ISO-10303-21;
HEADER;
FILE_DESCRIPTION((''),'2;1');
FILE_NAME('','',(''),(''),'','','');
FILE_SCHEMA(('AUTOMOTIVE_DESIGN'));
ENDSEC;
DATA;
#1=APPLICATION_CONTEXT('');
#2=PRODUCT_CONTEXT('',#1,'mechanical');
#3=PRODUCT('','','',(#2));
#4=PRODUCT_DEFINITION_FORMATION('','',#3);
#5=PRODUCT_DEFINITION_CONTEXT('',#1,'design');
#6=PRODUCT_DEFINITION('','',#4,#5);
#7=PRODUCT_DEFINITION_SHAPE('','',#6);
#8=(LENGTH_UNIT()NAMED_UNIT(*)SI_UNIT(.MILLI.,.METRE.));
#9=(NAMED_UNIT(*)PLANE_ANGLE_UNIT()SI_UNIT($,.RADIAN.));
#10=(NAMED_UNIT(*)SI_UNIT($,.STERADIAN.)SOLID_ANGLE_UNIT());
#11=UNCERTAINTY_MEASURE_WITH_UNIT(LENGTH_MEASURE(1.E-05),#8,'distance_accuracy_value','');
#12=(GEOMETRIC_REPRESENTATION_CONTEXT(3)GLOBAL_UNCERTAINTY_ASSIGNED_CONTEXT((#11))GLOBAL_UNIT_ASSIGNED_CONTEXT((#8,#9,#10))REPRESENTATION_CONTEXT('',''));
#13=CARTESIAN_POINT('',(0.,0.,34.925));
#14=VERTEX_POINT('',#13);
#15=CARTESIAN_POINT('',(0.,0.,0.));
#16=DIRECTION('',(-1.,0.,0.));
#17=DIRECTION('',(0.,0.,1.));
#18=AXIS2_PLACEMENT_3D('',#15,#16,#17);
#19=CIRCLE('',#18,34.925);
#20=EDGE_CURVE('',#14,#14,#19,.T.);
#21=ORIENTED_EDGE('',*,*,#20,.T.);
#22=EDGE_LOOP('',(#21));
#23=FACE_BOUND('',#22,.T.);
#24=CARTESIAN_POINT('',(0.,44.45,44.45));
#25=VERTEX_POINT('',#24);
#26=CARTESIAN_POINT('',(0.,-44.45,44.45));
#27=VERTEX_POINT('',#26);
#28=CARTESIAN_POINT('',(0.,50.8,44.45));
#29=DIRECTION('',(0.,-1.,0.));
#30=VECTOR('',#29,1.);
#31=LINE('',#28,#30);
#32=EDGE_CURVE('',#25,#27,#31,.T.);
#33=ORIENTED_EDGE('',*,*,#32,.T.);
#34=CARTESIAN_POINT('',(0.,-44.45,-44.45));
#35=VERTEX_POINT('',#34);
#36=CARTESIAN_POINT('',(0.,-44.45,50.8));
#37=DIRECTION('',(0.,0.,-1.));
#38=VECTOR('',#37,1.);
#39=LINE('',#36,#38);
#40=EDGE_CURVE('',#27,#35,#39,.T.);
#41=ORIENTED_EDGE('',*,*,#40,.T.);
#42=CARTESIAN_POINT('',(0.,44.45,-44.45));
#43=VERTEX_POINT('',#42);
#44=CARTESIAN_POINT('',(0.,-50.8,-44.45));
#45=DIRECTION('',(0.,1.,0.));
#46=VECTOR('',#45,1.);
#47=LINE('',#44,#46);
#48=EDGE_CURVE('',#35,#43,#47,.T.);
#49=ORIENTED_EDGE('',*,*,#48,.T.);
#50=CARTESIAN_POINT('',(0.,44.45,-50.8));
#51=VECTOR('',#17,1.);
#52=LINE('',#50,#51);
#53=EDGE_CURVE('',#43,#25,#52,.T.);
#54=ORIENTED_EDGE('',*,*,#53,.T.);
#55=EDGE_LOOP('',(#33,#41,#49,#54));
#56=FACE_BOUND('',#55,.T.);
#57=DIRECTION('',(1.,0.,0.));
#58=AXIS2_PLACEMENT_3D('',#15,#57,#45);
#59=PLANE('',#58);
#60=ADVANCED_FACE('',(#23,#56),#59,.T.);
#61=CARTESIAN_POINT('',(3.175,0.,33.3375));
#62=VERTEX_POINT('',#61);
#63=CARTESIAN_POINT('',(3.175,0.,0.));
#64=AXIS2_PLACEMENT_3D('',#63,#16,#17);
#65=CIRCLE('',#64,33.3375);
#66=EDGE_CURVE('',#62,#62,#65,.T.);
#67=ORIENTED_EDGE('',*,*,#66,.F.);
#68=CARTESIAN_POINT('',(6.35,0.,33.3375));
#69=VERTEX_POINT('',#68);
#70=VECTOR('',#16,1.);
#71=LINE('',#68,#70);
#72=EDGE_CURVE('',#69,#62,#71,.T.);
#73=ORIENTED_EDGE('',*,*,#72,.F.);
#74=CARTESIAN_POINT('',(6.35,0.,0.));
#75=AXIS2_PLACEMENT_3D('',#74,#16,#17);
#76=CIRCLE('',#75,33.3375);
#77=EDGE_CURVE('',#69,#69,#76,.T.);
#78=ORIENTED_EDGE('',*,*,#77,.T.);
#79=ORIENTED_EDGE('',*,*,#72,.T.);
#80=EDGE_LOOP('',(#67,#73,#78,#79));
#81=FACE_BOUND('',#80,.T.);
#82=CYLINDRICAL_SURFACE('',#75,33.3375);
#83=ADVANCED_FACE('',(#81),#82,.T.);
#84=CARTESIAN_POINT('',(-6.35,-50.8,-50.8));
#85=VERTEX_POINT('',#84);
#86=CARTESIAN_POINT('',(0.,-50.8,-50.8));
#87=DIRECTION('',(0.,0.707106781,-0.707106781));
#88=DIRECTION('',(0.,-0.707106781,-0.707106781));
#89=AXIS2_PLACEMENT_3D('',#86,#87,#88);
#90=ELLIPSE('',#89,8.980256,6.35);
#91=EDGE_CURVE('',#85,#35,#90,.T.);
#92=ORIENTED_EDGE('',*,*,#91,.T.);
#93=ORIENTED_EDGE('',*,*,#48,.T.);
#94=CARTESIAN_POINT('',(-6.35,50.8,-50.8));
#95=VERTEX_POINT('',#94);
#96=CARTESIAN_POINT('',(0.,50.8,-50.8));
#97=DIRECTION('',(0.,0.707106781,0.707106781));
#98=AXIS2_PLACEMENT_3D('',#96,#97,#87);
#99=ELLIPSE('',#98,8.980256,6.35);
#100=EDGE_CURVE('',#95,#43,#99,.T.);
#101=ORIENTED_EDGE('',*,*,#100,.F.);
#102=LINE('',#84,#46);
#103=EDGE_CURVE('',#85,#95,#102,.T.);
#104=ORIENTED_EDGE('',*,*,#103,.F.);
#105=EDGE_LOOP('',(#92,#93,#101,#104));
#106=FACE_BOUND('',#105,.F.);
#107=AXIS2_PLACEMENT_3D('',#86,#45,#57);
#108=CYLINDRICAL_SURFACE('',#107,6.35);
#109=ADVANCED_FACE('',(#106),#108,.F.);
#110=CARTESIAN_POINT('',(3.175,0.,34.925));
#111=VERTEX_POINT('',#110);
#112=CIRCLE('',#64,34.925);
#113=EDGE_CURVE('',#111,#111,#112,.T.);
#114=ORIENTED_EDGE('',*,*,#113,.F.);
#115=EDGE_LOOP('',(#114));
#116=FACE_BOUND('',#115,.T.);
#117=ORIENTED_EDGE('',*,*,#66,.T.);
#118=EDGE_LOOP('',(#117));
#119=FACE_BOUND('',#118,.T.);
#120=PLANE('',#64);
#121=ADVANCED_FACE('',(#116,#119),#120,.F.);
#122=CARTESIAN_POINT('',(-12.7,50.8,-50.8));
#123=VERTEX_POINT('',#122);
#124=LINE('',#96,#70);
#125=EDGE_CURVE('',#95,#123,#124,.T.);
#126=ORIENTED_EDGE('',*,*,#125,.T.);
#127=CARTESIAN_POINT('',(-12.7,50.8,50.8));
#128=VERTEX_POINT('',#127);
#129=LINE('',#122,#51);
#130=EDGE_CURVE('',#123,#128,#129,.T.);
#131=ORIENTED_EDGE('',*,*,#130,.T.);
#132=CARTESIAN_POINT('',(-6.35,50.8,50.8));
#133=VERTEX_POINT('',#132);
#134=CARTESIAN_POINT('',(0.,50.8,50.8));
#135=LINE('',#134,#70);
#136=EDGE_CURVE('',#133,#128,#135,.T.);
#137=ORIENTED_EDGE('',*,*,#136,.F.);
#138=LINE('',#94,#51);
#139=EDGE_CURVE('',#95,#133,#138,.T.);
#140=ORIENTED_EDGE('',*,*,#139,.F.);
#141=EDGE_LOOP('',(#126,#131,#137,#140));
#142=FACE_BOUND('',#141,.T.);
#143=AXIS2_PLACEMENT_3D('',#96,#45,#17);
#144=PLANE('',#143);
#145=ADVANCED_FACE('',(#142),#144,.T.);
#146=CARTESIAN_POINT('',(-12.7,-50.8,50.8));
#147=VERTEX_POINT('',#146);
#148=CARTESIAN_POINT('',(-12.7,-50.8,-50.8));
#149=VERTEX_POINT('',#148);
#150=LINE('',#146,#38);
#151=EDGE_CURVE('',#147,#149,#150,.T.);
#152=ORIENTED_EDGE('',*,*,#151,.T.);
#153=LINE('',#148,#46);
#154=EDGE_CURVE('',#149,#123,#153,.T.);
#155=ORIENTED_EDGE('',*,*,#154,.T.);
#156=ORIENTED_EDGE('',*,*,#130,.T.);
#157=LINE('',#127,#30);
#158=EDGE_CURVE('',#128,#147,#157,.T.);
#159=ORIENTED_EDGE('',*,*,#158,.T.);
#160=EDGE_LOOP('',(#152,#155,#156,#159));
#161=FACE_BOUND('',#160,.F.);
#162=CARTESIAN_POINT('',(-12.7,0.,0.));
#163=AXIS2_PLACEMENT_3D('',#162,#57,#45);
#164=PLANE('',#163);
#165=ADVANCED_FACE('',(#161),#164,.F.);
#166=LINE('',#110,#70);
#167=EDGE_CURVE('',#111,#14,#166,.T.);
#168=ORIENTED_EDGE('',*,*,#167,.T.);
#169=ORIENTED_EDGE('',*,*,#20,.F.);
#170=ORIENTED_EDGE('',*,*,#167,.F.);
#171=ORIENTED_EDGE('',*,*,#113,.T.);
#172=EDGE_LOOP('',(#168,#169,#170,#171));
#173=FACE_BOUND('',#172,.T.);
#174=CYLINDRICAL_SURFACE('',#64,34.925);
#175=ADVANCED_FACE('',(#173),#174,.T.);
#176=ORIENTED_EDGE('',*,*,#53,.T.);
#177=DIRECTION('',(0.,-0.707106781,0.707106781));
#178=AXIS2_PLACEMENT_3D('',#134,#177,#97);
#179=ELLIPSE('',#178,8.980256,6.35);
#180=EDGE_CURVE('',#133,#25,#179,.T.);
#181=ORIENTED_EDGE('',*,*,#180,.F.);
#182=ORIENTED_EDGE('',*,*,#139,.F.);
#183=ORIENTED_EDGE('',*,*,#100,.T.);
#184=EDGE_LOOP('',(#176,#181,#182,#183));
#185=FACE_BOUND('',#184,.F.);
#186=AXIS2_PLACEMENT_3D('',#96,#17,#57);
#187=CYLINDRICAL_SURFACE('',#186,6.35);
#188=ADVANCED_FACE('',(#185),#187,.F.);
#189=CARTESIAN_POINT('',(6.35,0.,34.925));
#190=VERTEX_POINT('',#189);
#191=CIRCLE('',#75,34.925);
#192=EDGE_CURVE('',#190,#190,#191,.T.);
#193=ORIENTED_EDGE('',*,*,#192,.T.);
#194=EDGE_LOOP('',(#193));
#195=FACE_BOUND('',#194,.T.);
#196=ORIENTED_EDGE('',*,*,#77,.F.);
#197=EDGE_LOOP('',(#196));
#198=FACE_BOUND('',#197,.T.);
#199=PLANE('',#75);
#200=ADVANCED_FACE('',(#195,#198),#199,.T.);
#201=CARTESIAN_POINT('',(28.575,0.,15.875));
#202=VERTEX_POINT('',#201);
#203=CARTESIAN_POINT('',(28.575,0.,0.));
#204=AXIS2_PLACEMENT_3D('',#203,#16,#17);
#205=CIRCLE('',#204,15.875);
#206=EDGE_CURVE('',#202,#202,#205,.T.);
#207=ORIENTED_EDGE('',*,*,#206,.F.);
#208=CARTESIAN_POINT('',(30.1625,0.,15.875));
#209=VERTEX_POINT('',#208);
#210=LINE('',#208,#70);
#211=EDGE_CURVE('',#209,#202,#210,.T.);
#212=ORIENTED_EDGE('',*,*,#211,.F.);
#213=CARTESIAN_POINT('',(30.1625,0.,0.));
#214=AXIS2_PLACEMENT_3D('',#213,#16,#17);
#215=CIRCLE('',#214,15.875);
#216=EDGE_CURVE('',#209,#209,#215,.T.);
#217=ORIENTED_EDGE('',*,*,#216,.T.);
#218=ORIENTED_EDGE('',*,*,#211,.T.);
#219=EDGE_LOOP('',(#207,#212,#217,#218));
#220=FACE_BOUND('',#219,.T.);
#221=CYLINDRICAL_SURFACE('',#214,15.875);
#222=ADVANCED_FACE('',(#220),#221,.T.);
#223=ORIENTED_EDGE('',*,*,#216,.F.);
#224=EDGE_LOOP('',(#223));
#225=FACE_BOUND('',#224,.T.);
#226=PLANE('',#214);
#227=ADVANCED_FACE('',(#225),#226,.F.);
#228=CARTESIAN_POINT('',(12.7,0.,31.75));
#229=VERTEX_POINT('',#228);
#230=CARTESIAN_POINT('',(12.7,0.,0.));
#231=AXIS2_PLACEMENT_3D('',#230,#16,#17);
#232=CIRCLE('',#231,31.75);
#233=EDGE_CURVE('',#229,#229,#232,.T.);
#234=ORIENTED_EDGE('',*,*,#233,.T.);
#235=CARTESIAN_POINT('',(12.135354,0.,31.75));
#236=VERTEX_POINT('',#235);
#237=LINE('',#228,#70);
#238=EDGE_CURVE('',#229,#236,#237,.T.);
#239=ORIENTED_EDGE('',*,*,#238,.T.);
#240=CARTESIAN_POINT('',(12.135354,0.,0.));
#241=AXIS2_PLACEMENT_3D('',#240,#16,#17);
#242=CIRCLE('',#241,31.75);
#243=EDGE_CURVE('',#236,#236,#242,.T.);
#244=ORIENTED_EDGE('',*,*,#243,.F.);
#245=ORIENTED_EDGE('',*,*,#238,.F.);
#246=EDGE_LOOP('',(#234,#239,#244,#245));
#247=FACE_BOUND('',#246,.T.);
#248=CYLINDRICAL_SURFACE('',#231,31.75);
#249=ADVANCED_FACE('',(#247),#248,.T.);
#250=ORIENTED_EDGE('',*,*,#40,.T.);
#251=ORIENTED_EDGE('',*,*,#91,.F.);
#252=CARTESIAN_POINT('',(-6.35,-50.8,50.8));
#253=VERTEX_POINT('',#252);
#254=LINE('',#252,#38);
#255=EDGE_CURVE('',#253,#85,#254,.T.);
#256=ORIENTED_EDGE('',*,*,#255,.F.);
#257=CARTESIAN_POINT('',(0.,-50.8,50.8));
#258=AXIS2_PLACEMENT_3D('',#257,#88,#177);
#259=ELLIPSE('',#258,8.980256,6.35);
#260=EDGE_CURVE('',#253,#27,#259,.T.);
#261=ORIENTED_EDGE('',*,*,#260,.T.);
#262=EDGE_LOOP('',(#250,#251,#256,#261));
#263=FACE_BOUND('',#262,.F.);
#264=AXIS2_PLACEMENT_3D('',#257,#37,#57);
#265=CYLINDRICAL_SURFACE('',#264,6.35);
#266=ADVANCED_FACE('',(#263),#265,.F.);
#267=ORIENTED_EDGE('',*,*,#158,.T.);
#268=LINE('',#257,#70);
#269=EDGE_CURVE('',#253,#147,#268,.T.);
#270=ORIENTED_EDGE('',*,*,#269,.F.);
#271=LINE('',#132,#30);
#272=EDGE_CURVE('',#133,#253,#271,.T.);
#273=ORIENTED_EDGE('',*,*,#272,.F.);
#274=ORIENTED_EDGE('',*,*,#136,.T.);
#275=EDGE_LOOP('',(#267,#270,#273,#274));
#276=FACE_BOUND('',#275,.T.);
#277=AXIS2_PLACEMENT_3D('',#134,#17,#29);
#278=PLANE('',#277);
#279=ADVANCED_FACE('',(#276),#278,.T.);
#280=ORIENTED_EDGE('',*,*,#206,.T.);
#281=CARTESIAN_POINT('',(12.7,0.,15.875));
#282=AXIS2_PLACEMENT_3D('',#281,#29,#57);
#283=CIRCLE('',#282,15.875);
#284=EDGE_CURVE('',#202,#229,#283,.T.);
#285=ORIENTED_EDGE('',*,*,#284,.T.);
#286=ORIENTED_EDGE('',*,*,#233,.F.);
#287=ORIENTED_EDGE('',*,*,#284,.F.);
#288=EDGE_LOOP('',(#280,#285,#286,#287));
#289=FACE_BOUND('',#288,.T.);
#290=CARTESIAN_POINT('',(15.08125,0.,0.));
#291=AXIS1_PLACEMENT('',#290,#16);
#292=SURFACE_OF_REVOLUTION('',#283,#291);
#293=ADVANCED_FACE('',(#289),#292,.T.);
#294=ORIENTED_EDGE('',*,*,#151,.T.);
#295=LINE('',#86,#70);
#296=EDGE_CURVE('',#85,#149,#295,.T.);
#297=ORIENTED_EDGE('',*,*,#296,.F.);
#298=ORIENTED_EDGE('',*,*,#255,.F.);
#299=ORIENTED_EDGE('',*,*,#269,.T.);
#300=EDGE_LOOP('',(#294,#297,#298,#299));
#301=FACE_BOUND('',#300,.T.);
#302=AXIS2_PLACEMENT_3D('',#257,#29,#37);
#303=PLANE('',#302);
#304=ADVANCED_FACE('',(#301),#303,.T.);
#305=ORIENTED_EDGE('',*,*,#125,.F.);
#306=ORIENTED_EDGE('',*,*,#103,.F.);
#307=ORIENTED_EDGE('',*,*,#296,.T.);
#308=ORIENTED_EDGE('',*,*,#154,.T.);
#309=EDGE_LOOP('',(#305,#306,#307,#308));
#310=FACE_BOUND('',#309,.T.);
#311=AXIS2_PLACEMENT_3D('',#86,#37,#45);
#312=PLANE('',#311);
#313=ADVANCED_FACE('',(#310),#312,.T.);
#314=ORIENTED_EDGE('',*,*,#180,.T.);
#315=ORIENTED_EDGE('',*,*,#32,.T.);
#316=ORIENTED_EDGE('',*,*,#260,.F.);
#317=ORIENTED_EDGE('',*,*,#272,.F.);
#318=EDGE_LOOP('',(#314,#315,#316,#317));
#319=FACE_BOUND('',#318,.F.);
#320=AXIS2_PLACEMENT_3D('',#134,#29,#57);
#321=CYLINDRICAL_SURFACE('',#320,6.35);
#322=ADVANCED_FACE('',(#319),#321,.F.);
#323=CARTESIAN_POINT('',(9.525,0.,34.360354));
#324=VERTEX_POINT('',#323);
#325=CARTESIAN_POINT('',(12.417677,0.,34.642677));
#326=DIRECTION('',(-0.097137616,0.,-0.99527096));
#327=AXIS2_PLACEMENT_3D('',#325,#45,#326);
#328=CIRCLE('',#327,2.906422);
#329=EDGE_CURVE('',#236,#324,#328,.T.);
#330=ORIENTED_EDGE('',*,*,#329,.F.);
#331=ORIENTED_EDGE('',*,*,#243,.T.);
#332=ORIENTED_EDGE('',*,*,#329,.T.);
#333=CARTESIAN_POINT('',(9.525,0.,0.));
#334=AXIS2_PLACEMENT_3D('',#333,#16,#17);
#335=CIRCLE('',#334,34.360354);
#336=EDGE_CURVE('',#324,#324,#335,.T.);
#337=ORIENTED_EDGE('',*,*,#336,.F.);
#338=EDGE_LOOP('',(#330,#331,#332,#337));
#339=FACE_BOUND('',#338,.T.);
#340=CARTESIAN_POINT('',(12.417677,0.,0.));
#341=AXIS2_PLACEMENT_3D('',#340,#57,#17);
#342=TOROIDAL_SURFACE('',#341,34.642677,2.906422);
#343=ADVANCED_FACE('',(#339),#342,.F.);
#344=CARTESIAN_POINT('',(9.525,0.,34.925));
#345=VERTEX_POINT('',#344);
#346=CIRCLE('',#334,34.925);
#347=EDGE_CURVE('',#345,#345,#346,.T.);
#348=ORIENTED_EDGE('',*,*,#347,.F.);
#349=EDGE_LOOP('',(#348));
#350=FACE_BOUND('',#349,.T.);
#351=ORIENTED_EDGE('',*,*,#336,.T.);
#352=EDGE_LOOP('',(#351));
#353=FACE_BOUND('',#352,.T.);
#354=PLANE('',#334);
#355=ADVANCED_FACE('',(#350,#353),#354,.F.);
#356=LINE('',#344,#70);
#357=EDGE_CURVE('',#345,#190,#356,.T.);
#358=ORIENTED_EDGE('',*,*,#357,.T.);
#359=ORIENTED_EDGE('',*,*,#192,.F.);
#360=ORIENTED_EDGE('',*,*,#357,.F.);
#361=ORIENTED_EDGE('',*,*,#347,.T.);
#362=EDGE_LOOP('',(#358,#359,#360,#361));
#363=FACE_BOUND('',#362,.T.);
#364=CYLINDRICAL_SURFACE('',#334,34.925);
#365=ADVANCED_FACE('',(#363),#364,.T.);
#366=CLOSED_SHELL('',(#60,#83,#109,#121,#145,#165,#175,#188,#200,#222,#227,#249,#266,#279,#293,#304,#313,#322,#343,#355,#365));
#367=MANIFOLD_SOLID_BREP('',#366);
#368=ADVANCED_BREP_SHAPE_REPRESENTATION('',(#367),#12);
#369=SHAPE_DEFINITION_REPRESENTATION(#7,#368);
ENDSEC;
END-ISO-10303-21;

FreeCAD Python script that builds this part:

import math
import FreeCAD as App
import Part
import Sketcher
Q = App.Units.Quantity


def add_polygon(sketch, points):
    """Adds a closed chain of lines whose ends are joined by coincident constraints."""
    first, n = sketch.GeometryCount, len(points)
    for a, b in zip(points, points[1:] + points[:1]):
        sketch.addGeometry(Part.LineSegment(App.Vector(*a, 0), App.Vector(*b, 0)), False)
    for i in range(n):
        sketch.addConstraint(Sketcher.Constraint("Coincident", first + i, 2, first + (i + 1) % n, 1))

doc = App.newDocument("Part")
body = doc.addObject("PartDesign::Body", "Body")

# Sketch on XZ plane
sketch1 = body.newObject("Sketcher::SketchObject", "Sketch")
sketch1.AttachmentSupport = (doc.getObject("XZ_Plane"), [""])
sketch1.MapMode = "FlatFace"
sketch1.addGeometry([
    Part.LineSegment(App.Vector(0, 34.9, 0), App.Vector(0, 0, 0)),  # 0
    Part.LineSegment(App.Vector(0, 0, 0), App.Vector(30.2, 0, 0)),  # 1
    Part.LineSegment(App.Vector(30.2, 0, 0), App.Vector(30.2, 15.9, 0)),  # 2
    Part.LineSegment(App.Vector(30.2, 15.9, 0), App.Vector(28.6, 15.9, 0)),  # 3
    Part.ArcOfCircle(Part.Circle(App.Vector(12.7, 15.9, 0), App.Vector(0, 0, 1), 15.9), math.radians(0), math.radians(90)),  # 4
    Part.LineSegment(App.Vector(12.7, 31.8, 0), App.Vector(12.1, 31.8, 0)),  # 5
    Part.ArcOfCircle(Part.Circle(App.Vector(12.4, 34.6, 0), App.Vector(0, 0, 1), 2.9), math.radians(-174), math.radians(-96)),  # 6
    Part.LineSegment(App.Vector(9.5, 34.4, 0), App.Vector(9.5, 34.9, 0)),  # 7
    Part.LineSegment(App.Vector(9.5, 34.9, 0), App.Vector(6.3, 34.9, 0)),  # 8
    Part.LineSegment(App.Vector(6.3, 34.9, 0), App.Vector(6.3, 33.3, 0)),  # 9
    Part.LineSegment(App.Vector(6.3, 33.3, 0), App.Vector(3.2, 33.3, 0)),  # 10
    Part.LineSegment(App.Vector(3.2, 33.3, 0), App.Vector(3.2, 34.9, 0)),  # 11
    Part.LineSegment(App.Vector(3.2, 34.9, 0), App.Vector(0, 34.9, 0)),  # 12
], False)
sketch1.addConstraint([
    Sketcher.Constraint("Coincident", 0, 2, 1, 1),
    Sketcher.Constraint("Coincident", 1, 2, 2, 1),
    Sketcher.Constraint("Coincident", 2, 2, 3, 1),
    Sketcher.Constraint("Coincident", 3, 2, 4, 1),
    Sketcher.Constraint("Tangent", 4, 2, 5, 1),
    Sketcher.Constraint("Coincident", 5, 2, 6, 2),
    Sketcher.Constraint("Coincident", 6, 1, 7, 1),
    Sketcher.Constraint("Coincident", 7, 2, 8, 1),
    Sketcher.Constraint("Coincident", 8, 2, 9, 1),
    Sketcher.Constraint("Coincident", 9, 2, 10, 1),
    Sketcher.Constraint("Coincident", 10, 2, 11, 1),
    Sketcher.Constraint("Coincident", 11, 2, 12, 1),
    Sketcher.Constraint("Coincident", 12, 2, 0, 1),
    Sketcher.Constraint("Vertical", 0),
    Sketcher.Constraint("Horizontal", 1),
    Sketcher.Constraint("Vertical", 2),
    Sketcher.Constraint("Horizontal", 3),
    Sketcher.Constraint("Horizontal", 5),
    Sketcher.Constraint("Vertical", 7),
    Sketcher.Constraint("Horizontal", 8),
    Sketcher.Constraint("Vertical", 9),
    Sketcher.Constraint("Horizontal", 10),
    Sketcher.Constraint("Vertical", 11),
    Sketcher.Constraint("Horizontal", 12),
    Sketcher.Constraint("Coincident", 0, 2, -1, 1),
    Sketcher.Constraint("Horizontal", 4, 3, 2, 2),
    Sketcher.Constraint("Horizontal", 8, 2, 11, 2),
    Sketcher.Constraint("Equal", 8, 10),
    Sketcher.Constraint("Equal", 10, 12),
    Sketcher.Constraint("Equal", 5, 7),
    Sketcher.Constraint("Equal", 3, 9),
    Sketcher.Constraint("Radius", 4, Q("0.625 in")),
    Sketcher.Constraint("DistanceX", -1, 1, 4, 3, Q("0.5 in")),
    Sketcher.Constraint("DistanceX", 1, 1, 1, 2, Q("1.1875 in")),
    Sketcher.Constraint("DistanceX", 8, 2, 8, 1, Q("0.125 in")),
    Sketcher.Constraint("DistanceY", 0, 2, 0, 1, Q("1.375 in")),
    Sketcher.Constraint("DistanceY", 2, 1, 2, 2, Q("0.625 in")),
    Sketcher.Constraint("Radius", 6, Q("2.906422 mm")),
    Sketcher.Constraint("DistanceX", 5, 2, 5, 1, Q("0.564646 mm")),
])
revolution = body.newObject("PartDesign::Revolution", "Revolution")
revolution.Profile = sketch1
revolution.ReferenceAxis = (sketch1, ["H_Axis"])
revolution.Angle = 360

# Sketch on YZ plane
sketch2 = body.newObject("Sketcher::SketchObject", "Sketch001")
sketch2.AttachmentSupport = (doc.getObject("YZ_Plane"), [""])
sketch2.MapMode = "FlatFace"
add_polygon(sketch2, [(51, 51), (-51, 51), (-51, -51), (51, -51)])  # lines 0-3
sketch2.addConstraint([
    Sketcher.Constraint("Horizontal", 0),
    Sketcher.Constraint("Vertical", 1),
    Sketcher.Constraint("Horizontal", 2),
    Sketcher.Constraint("Vertical", 3),
    Sketcher.Constraint("Symmetric", 0, 2, 2, 2, -1, 1),
    Sketcher.Constraint("Equal", 2, 1),
    Sketcher.Constraint("DistanceX", 0, 2, 0, 1, Q("4 in")),
])
pad1 = body.newObject("PartDesign::Pad", "Pad")
pad1.Profile = sketch2
pad1.Length = Q("0.5 in")
pad1.Reversed = True

# Sketch on XZ plane
sketch3 = body.newObject("Sketcher::SketchObject", "Sketch002")
sketch3.AttachmentSupport = (doc.getObject("XZ_Plane"), [""])
sketch3.MapMode = "FlatFace"
sketch3.AttachmentOffset = App.Placement(App.Vector(0, 0, 2 * 25.4), App.Rotation())
sketch3.addGeometry(Part.Circle(App.Vector(0, 51, 0), App.Vector(0, 0, 1), 6), False)
sketch3.addConstraint([
    Sketcher.Constraint("PointOnObject", 0, 3, -2),
    Sketcher.Constraint("Diameter", 0, Q("0.5 in")),
    Sketcher.Constraint("DistanceY", -1, 1, 0, 3, Q("2 in")),
])

# Sketch on YZ plane
sketch4 = body.newObject("Sketcher::SketchObject", "Sketch003")
sketch4.AttachmentSupport = (doc.getObject("YZ_Plane"), [""])
sketch4.MapMode = "FlatFace"
add_polygon(sketch4, [(51, 51), (-51, 51), (-51, -51), (51, -51)])  # lines 0-3
sketch4.addConstraint([
    Sketcher.Constraint("Horizontal", 0),
    Sketcher.Constraint("Vertical", 1),
    Sketcher.Constraint("Horizontal", 2),
    Sketcher.Constraint("Vertical", 3),
    Sketcher.Constraint("Symmetric", 0, 2, 2, 2, -1, 1),
    Sketcher.Constraint("Equal", 2, 1),
    Sketcher.Constraint("DistanceX", 0, 2, 0, 1, Q("4 in")),
])
doc.recompute()

subtractivepipe = body.newObject("PartDesign::SubtractivePipe", "SubtractivePipe")
subtractivepipe.Profile = sketch3
subtractivepipe.Spine = (sketch4, ["Edge1", "Edge2", "Edge3", "Edge4"])
subtractivepipe.Transition = "Right corner"

doc.recompute()
